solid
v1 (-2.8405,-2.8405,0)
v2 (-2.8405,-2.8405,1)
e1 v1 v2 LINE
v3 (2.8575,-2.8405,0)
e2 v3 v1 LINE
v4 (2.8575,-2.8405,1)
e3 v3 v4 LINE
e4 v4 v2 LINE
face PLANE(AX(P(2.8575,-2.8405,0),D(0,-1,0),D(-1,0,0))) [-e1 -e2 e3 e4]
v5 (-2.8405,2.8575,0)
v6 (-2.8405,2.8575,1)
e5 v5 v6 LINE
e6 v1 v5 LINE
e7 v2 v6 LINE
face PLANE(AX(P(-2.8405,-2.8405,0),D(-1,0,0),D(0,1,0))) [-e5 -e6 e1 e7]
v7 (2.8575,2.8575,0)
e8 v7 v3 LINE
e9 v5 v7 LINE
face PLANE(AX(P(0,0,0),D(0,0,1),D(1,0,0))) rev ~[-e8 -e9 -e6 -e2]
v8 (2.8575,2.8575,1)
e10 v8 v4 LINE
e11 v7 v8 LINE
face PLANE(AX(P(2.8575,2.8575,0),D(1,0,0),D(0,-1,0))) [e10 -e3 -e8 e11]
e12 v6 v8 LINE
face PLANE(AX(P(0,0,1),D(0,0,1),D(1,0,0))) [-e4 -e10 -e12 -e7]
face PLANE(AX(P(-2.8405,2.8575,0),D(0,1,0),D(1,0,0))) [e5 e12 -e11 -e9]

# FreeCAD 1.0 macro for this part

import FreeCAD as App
import Part
import Sketcher

V = App.Vector

doc = App.newDocument("Part")
params = doc.addObject("Spreadsheet::Sheet", "Params")
for row, (alias, value) in enumerate([
    ("pad1_length", "1 mm"),
], start=1):
    params.set(f"A{row}", alias)
    params.set(f"B{row}", "=" + value)
    params.setAlias(f"B{row}", alias)

body = doc.addObject("PartDesign::Body", "Body")

# Sketch on XY plane
sketch1 = body.newObject("Sketcher::SketchObject", "Sketch")
sketch1.AttachmentSupport = (doc.getObject("XY_Plane"), [""])
sketch1.MapMode = "FlatFace"
sketch1.addGeometry(Part.LineSegment(V(3, 3, 0), V(-3, 3, 0)), False)
sketch1.addGeometry(Part.LineSegment(V(-3, 3, 0), V(-3, -3, 0)), False)
sketch1.addGeometry(Part.LineSegment(V(-3, -3, 0), V(3, -3, 0)), False)
sketch1.addGeometry(Part.LineSegment(V(3, -3, 0), V(3, 3, 0)), False)
sketch1.addConstraint(Sketcher.Constraint("Coincident", 0, 2, 1, 1))
sketch1.addConstraint(Sketcher.Constraint("Coincident", 1, 2, 2, 1))
sketch1.addConstraint(Sketcher.Constraint("Coincident", 2, 2, 3, 1))
sketch1.addConstraint(Sketcher.Constraint("Coincident", 3, 2, 0, 1))
sketch1.addConstraint(Sketcher.Constraint("Horizontal", 0))
sketch1.addConstraint(Sketcher.Constraint("Vertical", 1))
sketch1.addConstraint(Sketcher.Constraint("Horizontal", 2))
sketch1.addConstraint(Sketcher.Constraint("Vertical", 3))
sketch1.addConstraint(Sketcher.Constraint("Equal", 2, 1))
sketch1.addConstraint(Sketcher.Constraint("DistanceX", 0, 2, 0, 1, 5.698))
sketch1.addConstraint(Sketcher.Constraint("DistanceX", 0, 2, -1, 1, 2.8405))
sketch1.addConstraint(Sketcher.Constraint("DistanceY", -1, 1, 0, 2, 2.8575))
pad1 = body.newObject("PartDesign::Pad", "Pad")
pad1.Profile = sketch1
pad1.setExpression("Length", "Params.pad1_length")

doc.recompute()
